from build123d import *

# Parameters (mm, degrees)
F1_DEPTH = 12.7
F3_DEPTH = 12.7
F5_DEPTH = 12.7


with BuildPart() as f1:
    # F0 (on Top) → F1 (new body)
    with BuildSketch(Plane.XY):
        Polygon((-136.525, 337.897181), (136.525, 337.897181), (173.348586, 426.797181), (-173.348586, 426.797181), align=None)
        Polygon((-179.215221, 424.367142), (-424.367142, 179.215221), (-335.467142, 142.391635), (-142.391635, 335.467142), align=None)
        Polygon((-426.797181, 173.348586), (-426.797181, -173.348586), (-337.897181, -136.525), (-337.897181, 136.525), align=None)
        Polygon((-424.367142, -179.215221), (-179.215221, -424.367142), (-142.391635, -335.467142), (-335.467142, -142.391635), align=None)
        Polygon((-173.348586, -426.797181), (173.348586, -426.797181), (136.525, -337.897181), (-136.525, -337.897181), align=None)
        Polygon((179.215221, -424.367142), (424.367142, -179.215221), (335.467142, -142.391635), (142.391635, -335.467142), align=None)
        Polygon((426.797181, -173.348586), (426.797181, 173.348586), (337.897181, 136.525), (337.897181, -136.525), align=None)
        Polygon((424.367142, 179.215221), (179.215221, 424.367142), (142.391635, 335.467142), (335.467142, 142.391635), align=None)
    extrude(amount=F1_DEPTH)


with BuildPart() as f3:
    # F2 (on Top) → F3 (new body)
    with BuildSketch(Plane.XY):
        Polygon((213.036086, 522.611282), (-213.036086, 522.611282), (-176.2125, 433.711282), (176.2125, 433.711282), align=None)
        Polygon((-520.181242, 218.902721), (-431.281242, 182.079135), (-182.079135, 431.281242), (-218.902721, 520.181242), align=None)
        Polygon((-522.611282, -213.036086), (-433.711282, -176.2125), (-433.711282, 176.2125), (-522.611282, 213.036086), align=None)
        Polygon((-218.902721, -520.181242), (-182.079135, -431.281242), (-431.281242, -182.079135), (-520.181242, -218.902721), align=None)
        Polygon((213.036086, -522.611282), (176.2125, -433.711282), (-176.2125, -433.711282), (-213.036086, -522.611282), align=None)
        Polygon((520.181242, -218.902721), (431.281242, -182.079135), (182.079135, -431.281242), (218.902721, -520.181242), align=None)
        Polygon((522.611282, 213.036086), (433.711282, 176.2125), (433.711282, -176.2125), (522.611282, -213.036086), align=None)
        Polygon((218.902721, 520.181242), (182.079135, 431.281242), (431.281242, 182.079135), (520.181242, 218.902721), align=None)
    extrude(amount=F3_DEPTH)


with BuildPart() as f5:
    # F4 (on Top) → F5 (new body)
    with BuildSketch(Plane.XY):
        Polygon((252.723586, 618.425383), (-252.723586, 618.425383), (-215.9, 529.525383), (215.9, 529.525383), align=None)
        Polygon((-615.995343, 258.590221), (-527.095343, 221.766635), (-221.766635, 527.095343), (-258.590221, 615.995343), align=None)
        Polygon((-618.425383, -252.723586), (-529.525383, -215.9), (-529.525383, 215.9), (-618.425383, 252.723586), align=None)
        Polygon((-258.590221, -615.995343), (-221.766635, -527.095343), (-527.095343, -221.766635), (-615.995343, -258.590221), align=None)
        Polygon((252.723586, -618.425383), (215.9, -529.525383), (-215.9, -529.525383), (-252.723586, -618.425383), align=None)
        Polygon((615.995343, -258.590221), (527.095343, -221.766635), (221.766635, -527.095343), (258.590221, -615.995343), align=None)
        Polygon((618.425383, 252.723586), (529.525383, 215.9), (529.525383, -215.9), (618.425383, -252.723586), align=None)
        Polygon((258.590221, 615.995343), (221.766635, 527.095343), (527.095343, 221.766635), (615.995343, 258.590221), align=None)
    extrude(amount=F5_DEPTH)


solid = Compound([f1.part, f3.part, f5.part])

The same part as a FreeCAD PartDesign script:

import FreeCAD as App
import Part
import Sketcher
Q = App.Units.Quantity


def add_polygon(sketch, points):
    """Adds a closed chain of lines whose ends are joined by coincident constraints."""
    first, n = sketch.GeometryCount, len(points)
    for a, b in zip(points, points[1:] + points[:1]):
        sketch.addGeometry(Part.LineSegment(App.Vector(*a, 0), App.Vector(*b, 0)), False)
    for i in range(n):
        sketch.addConstraint(Sketcher.Constraint("Coincident", first + i, 2, first + (i + 1) % n, 1))

doc = App.newDocument("Part")
params = doc.addObject("Spreadsheet::Sheet", "Params")
for row, (alias, value) in enumerate([
    ("sketch1_width", "10.75 in"),
    ("sketch1_length", "10.75 in"),
    ("pad1_length", "0.5 in"),
    ("sketch2_width", "13.875 in"),
    ("sketch2_length", "13.875 in"),
    ("pad2_length", "0.5 in"),
    ("sketch3_width", "17 in"),
    ("sketch3_length", "17 in"),
    ("pad3_length", "0.5 in"),
], start=1):
    params.set(f"A{row}", alias)
    params.set(f"B{row}", "=" + value)
    params.setAlias(f"B{row}", alias)

body = doc.addObject("PartDesign::Body", "Body")
body.AllowCompound = True

# Sketch on XY plane
sketch1 = body.newObject("Sketcher::SketchObject", "Sketch")
sketch1.AttachmentSupport = (doc.getObject("XY_Plane"), [""])
sketch1.MapMode = "FlatFace"
add_polygon(sketch1, [(-137, 338), (137, 338), (173, 427), (-173, 427)])  # lines 0-3
add_polygon(sketch1, [(-179, 424), (-424, 179), (-335, 142), (-142, 335)])  # lines 4-7
add_polygon(sketch1, [(-427, 173), (-427, -173), (-338, -137), (-338, 137)])  # lines 8-11
add_polygon(sketch1, [(-424, -179), (-179, -424), (-142, -335), (-335, -142)])  # lines 12-15
add_polygon(sketch1, [(-173, -427), (173, -427), (137, -338), (-137, -338)])  # lines 16-19
add_polygon(sketch1, [(179, -424), (424, -179), (335, -142), (142, -335)])  # lines 20-23
add_polygon(sketch1, [(427, -173), (427, 173), (338, 137), (338, -137)])  # lines 24-27
add_polygon(sketch1, [(424, 179), (179, 424), (142, 335), (335, 142)])  # lines 28-31
sketch1.addConstraint([
    Sketcher.Constraint("Horizontal", 0),
    Sketcher.Constraint("Horizontal", 2),
    Sketcher.Constraint("Vertical", 8),
    Sketcher.Constraint("Vertical", 10),
    Sketcher.Constraint("Horizontal", 16),
    Sketcher.Constraint("Horizontal", 18),
    Sketcher.Constraint("Vertical", 24),
    Sketcher.Constraint("Vertical", 26),
    Sketcher.Constraint("Symmetric", 2, 2, 16, 2, -1, 1),
    Sketcher.Constraint("Symmetric", 3, 2, 17, 2, -1, 1),
    Sketcher.Constraint("Symmetric", 4, 2, 20, 2, -1, 1),
    Sketcher.Constraint("Symmetric", 5, 2, 21, 2, -1, 1),
    Sketcher.Constraint("Symmetric", 6, 2, 22, 2, -1, 1),
    Sketcher.Constraint("Symmetric", 7, 2, 23, 2, -1, 1),
    Sketcher.Constraint("Symmetric", 8, 2, 24, 2, -1, 1),
    Sketcher.Constraint("Symmetric", 9, 2, 25, 2, -1, 1),
    Sketcher.Constraint("Symmetric", 12, 2, 28, 2, -1, 1),
    Sketcher.Constraint("Symmetric", 13, 2, 29, 2, -1, 1),
    Sketcher.Constraint("Symmetric", 14, 2, 30, 2, -1, 1),
    Sketcher.Constraint("Symmetric", 15, 2, 31, 2, -1, 1),
    Sketcher.Constraint("Symmetric", 15, 2, 20, 2, -2),
    Sketcher.Constraint("Symmetric", 14, 2, 21, 2, -2),
    Sketcher.Constraint("Symmetric", 13, 2, 22, 2, -2),
    Sketcher.Constraint("Symmetric", 12, 2, 23, 2, -2),
    Sketcher.Constraint("Perpendicular", 1, 5),
    Sketcher.Constraint("Parallel", 4, 6),
    Sketcher.Constraint("Parallel", 3, 7),
    Sketcher.Constraint("Perpendicular", 7, 9),
    Sketcher.Constraint("Parallel", 5, 11),
    Sketcher.Constraint("Perpendicular", 6, 12),
    Sketcher.Constraint("Perpendicular", 11, 13),
    Sketcher.Constraint("Parallel", 13, 19),
    Sketcher.Constraint("Parallel", 21, 27),
    Sketcher.Constraint("Horizontal", 11, 2, 24, 2),
    Sketcher.Constraint("Horizontal", 9, 2, 26, 2),
    Sketcher.Constraint("Vertical", 1, 2, 16, 2),
    Sketcher.Constraint("Vertical", 3, 2, 18, 2),
    Sketcher.Constraint("Equal", 16, 8),
    Sketcher.Constraint("Equal", 18, 10),
    Sketcher.Constraint("Equal", 3, 5),
    Sketcher.Constraint("DistanceX", 0, 1, 0, 2, Q("10.75 in")),
    Sketcher.Constraint("Angle", 1, Q("67.5 deg")),
    Sketcher.Constraint("DistanceY", 0, 2, 1, 2, Q("3.5 in")),
    Sketcher.Constraint("Distance", 6, Q("10.75 in")),
    Sketcher.Constraint("DistanceY", 20, 2, 0, 2, Q("517.112402 mm")),
    Sketcher.Constraint("DistanceY", -1, 1, 0, 2, Q("337.897181 mm")),
    Sketcher.Constraint("DistanceX", 4, 2, -1, 1, Q("424.367142 mm")),
    Sketcher.Constraint("DistanceX", 8, 2, -1, 1, Q("426.797181 mm")),
])
sketch1.setExpression("Constraints[72]", "Params.sketch1_width")
sketch1.setExpression("Constraints[75]", "Params.sketch1_length")
pad1 = body.newObject("PartDesign::Pad", "Pad")
pad1.Profile = sketch1
pad1.setExpression("Length", "Params.pad1_length")
body2 = doc.addObject("PartDesign::Body", "Body001")
body2.AllowCompound = True

# Sketch on XY plane
sketch2 = body2.newObject("Sketcher::SketchObject", "Sketch001")
sketch2.AttachmentSupport = (doc.getObject("XY_Plane001"), [""])
sketch2.MapMode = "FlatFace"
add_polygon(sketch2, [(213, 523), (-213, 523), (-176, 434), (176, 434)])  # lines 0-3
add_polygon(sketch2, [(-520, 219), (-431, 182), (-182, 431), (-219, 520)])  # lines 4-7
add_polygon(sketch2, [(-523, -213), (-434, -176), (-434, 176), (-523, 213)])  # lines 8-11
add_polygon(sketch2, [(-219, -520), (-182, -431), (-431, -182), (-520, -219)])  # lines 12-15
add_polygon(sketch2, [(213, -523), (176, -434), (-176, -434), (-213, -523)])  # lines 16-19
add_polygon(sketch2, [(520, -219), (431, -182), (182, -431), (219, -520)])  # lines 20-23
add_polygon(sketch2, [(523, 213), (434, 176), (434, -176), (523, -213)])  # lines 24-27
add_polygon(sketch2, [(219, 520), (182, 431), (431, 182), (520, 219)])  # lines 28-31
sketch2.addConstraint([
    Sketcher.Constraint("Horizontal", 0),
    Sketcher.Constraint("Horizontal", 2),
    Sketcher.Constraint("Vertical", 9),
    Sketcher.Constraint("Vertical", 11),
    Sketcher.Constraint("Horizontal", 17),
    Sketcher.Constraint("Horizontal", 19),
    Sketcher.Constraint("Vertical", 25),
    Sketcher.Constraint("Vertical", 27),
    Sketcher.Constraint("Symmetric", 1, 2, 16, 2, -1, 1),
    Sketcher.Constraint("Symmetric", 3, 2, 18, 2, -1, 1),
    Sketcher.Constraint("Symmetric", 4, 2, 20, 2, -1, 1),
    Sketcher.Constraint("Symmetric", 5, 2, 21, 2, -1, 1),
    Sketcher.Constraint("Symmetric", 6, 2, 22, 2, -1, 1),
    Sketcher.Constraint("Symmetric", 7, 2, 23, 2, -1, 1),
    Sketcher.Constraint("Symmetric", 8, 2, 24, 2, -1, 1),
    Sketcher.Constraint("Symmetric", 10, 2, 26, 2, -1, 1),
    Sketcher.Constraint("Symmetric", 12, 2, 28, 2, -1, 1),
    Sketcher.Constraint("Symmetric", 13, 2, 29, 2, -1, 1),
    Sketcher.Constraint("Symmetric", 14, 2, 30, 2, -1, 1),
    Sketcher.Constraint("Symmetric", 15, 2, 31, 2, -1, 1),
    Sketcher.Constraint("Symmetric", 13, 2, 20, 2, -2),
    Sketcher.Constraint("Symmetric", 12, 2, 21, 2, -2),
    Sketcher.Constraint("Symmetric", 15, 2, 22, 2, -2),
    Sketcher.Constraint("Symmetric", 14, 2, 23, 2, -2),
    Sketcher.Constraint("Perpendicular", 3, 4),
    Sketcher.Constraint("Parallel", 1, 6),
    Sketcher.Constraint("Parallel", 5, 7),
    Sketcher.Constraint("Perpendicular", 6, 8),
    Sketcher.Constraint("Parallel", 4, 10),
    Sketcher.Constraint("Perpendicular", 10, 12),
    Sketcher.Constraint("Perpendicular", 7, 13),
    Sketcher.Constraint("Perpendicular", 14, 16),
    Sketcher.Constraint("Parallel", 12, 18),
    Sketcher.Constraint("Perpendicular", 22, 24),
    Sketcher.Constraint("Parallel", 20, 26),
    Sketcher.Constraint("Horizontal", 9, 2, 24, 2),
    Sketcher.Constraint("Vertical", 2, 2, 16, 2),
    Sketcher.Constraint("Equal", 17, 9),
    Sketcher.Constraint("Equal", 19, 11),
    Sketcher.Constraint("Equal", 3, 4),
    Sketcher.Constraint("Angle", 1, Q("-67.5 deg")),
    Sketcher.Constraint("DistanceY", 1, 2, 0, 2, Q("3.5 in")),
    Sketcher.Constraint("DistanceX", 2, 1, 2, 2, Q("13.875 in")),
    Sketcher.Constraint("Distance", 5, Q("13.875 in")),
    Sketcher.Constraint("DistanceX", 3, 2, 24, 2, Q("8.6879998 in")),
    Sketcher.Constraint("DistanceY", 27, 2, 2, 2, Q("8.6879998 in")),
    Sketcher.Constraint("DistanceX", 4, 2, -1, 1, Q("431.281242 mm")),
    Sketcher.Constraint("DistanceY", -1, 1, 5, 2, Q("431.281242 mm")),
])
sketch2.setExpression("Constraints[74]", "Params.sketch2_width")
sketch2.setExpression("Constraints[75]", "Params.sketch2_length")
pad2 = body2.newObject("PartDesign::Pad", "Pad001")
pad2.Profile = sketch2
pad2.setExpression("Length", "Params.pad2_length")
body3 = doc.addObject("PartDesign::Body", "Body002")
body3.AllowCompound = True

# Sketch on XY plane
sketch3 = body3.newObject("Sketcher::SketchObject", "Sketch002")
sketch3.AttachmentSupport = (doc.getObject("XY_Plane002"), [""])
sketch3.MapMode = "FlatFace"
add_polygon(sketch3, [(253, 618), (-253, 618), (-216, 530), (216, 530)])  # lines 0-3
add_polygon(sketch3, [(-616, 259), (-527, 222), (-222, 527), (-259, 616)])  # lines 4-7
add_polygon(sketch3, [(-618, -253), (-530, -216), (-530, 216), (-618, 253)])  # lines 8-11
add_polygon(sketch3, [(-259, -616), (-222, -527), (-527, -222), (-616, -259)])  # lines 12-15
add_polygon(sketch3, [(253, -618), (216, -530), (-216, -530), (-253, -618)])  # lines 16-19
add_polygon(sketch3, [(616, -259), (527, -222), (222, -527), (259, -616)])  # lines 20-23
add_polygon(sketch3, [(618, 253), (530, 216), (530, -216), (618, -253)])  # lines 24-27
add_polygon(sketch3, [(259, 616), (222, 527), (527, 222), (616, 259)])  # lines 28-31
sketch3.addConstraint([
    Sketcher.Constraint("Horizontal", 0),
    Sketcher.Constraint("Horizontal", 2),
    Sketcher.Constraint("Vertical", 9),
    Sketcher.Constraint("Vertical", 11),
    Sketcher.Constraint("Horizontal", 17),
    Sketcher.Constraint("Horizontal", 19),
    Sketcher.Constraint("Vertical", 25),
    Sketcher.Constraint("Vertical", 27),
    Sketcher.Constraint("Symmetric", 1, 2, 16, 2, -1, 1),
    Sketcher.Constraint("Symmetric", 3, 2, 18, 2, -1, 1),
    Sketcher.Constraint("Symmetric", 4, 2, 20, 2, -1, 1),
    Sketcher.Constraint("Symmetric", 5, 2, 21, 2, -1, 1),
    Sketcher.Constraint("Symmetric", 6, 2, 22, 2, -1, 1),
    Sketcher.Constraint("Symmetric", 7, 2, 23, 2, -1, 1),
    Sketcher.Constraint("Symmetric", 8, 2, 24, 2, -1, 1),
    Sketcher.Constraint("Symmetric", 10, 2, 26, 2, -1, 1),
    Sketcher.Constraint("Symmetric", 12, 2, 28, 2, -1, 1),
    Sketcher.Constraint("Symmetric", 13, 2, 29, 2, -1, 1),
    Sketcher.Constraint("Symmetric", 14, 2, 30, 2, -1, 1),
    Sketcher.Constraint("Symmetric", 15, 2, 31, 2, -1, 1),
    Sketcher.Constraint("Symmetric", 13, 2, 20, 2, -2),
    Sketcher.Constraint("Symmetric", 12, 2, 21, 2, -2),
    Sketcher.Constraint("Symmetric", 15, 2, 22, 2, -2),
    Sketcher.Constraint("Symmetric", 14, 2, 23, 2, -2),
    Sketcher.Constraint("Perpendicular", 3, 4),
    Sketcher.Constraint("Parallel", 1, 6),
    Sketcher.Constraint("Parallel", 5, 7),
    Sketcher.Constraint("Perpendicular", 6, 8),
    Sketcher.Constraint("Parallel", 4, 10),
    Sketcher.Constraint("Perpendicular", 10, 12),
    Sketcher.Constraint("Perpendicular", 7, 13),
    Sketcher.Constraint("Perpendicular", 14, 16),
    Sketcher.Constraint("Parallel", 12, 18),
    Sketcher.Constraint("Perpendicular", 22, 24),
    Sketcher.Constraint("Parallel", 20, 26),
    Sketcher.Constraint("Horizontal", 9, 2, 24, 2),
    Sketcher.Constraint("Vertical", 2, 2, 16, 2),
    Sketcher.Constraint("Equal", 17, 9),
    Sketcher.Constraint("Equal", 19, 11),
    Sketcher.Constraint("Equal", 3, 4),
    Sketcher.Constraint("DistanceX", 2, 1, 2, 2, Q("17 in")),
    Sketcher.Constraint("Distance", 5, Q("17 in")),
    Sketcher.Constraint("Angle", 1, Q("-67.5 deg")),
    Sketcher.Constraint("DistanceY", 1, 2, 0, 2, Q("3.5 in")),
    Sketcher.Constraint("DistanceX", 6, 2, -1, 1, Q("258.590221 mm")),
    Sketcher.Constraint("DistanceY", -1, 1, 7, 2, Q("258.590221 mm")),
    Sketcher.Constraint("DistanceY", 4, 2, 1, 2, Q("307.758748 mm")),
    Sketcher.Constraint("DistanceX", 8, 2, 4, 2, Q("2.43004 mm")),
])
sketch3.setExpression("Constraints[72]", "Params.sketch3_width")
sketch3.setExpression("Constraints[73]", "Params.sketch3_length")
pad3 = body3.newObject("PartDesign::Pad", "Pad002")
pad3.Profile = sketch3
pad3.setExpression("Length", "Params.pad3_length")

doc.recompute()
